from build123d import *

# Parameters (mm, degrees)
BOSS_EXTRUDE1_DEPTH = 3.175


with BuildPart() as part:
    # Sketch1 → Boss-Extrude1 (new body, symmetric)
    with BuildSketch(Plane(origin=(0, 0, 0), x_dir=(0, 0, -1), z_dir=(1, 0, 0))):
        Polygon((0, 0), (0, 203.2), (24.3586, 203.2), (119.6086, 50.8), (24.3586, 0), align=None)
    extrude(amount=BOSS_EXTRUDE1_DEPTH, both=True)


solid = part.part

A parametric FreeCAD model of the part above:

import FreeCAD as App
import Part
import Sketcher

V = App.Vector
Q = App.Units.Quantity


def add_polygon(sketch, points):
    """Adds a closed chain of lines whose ends are joined by coincident constraints."""
    first, n = sketch.GeometryCount, len(points)
    for a, b in zip(points, points[1:] + points[:1]):
        sketch.addGeometry(Part.LineSegment(App.Vector(*a, 0), App.Vector(*b, 0)), False)
    for i in range(n):
        sketch.addConstraint(Sketcher.Constraint("Coincident", first + i, 2, first + (i + 1) % n, 1))

doc = App.newDocument("Part")
params = doc.addObject("Spreadsheet::Sheet", "Params")
for row, (alias, value) in enumerate([
    ("sketch1_width", "8 in"),
    ("sketch1_length", "4.25 in"),
    ("sketch1_height", "0.959 in"),
    ("pad1_length", "0.25 in"),
], start=1):
    params.set(f"A{row}", alias)
    params.set(f"B{row}", "=" + value)
    params.setAlias(f"B{row}", alias)

body = doc.addObject("PartDesign::Body", "Body")

# Sketch on YZ plane
sketch1 = body.newObject("Sketcher::SketchObject", "Sketch")
sketch1.AttachmentSupport = (doc.getObject("YZ_Plane"), [""])
sketch1.MapMode = "FlatFace"
add_polygon(sketch1, [(203, 0), (0, 0), (0, -24), (51, -120), (203, -24)])  # lines 0-4
sketch1.addConstraint(Sketcher.Constraint("Horizontal", 0))
sketch1.addConstraint(Sketcher.Constraint("Vertical", 1))
sketch1.addConstraint(Sketcher.Constraint("Vertical", 4))
sketch1.addConstraint(Sketcher.Constraint("Coincident", 0, 2, -1, 1))
sketch1.addConstraint(Sketcher.Constraint("Horizontal", 1, 2, 3, 2))
sketch1.addConstraint(Sketcher.Constraint("DistanceX", 0, 2, 0, 1, Q("8 in")))
sketch1.addConstraint(Sketcher.Constraint("DistanceX", -1, 1, 2, 2, Q("2 in")))
sketch1.addConstraint(Sketcher.Constraint("Distance", 2, Q("4.25 in")))
sketch1.addConstraint(Sketcher.Constraint("DistanceY", 1, 2, 1, 1, Q("0.959 in")))
sketch1.setExpression("Constraints[10]", "Params.sketch1_width")
sketch1.setExpression("Constraints[12]", "Params.sketch1_length")
sketch1.setExpression("Constraints[13]", "Params.sketch1_height")
pad1 = body.newObject("PartDesign::Pad", "Pad")
pad1.Profile = sketch1
pad1.setExpression("Length", "Params.pad1_length")
pad1.Midplane = True

doc.recompute()
